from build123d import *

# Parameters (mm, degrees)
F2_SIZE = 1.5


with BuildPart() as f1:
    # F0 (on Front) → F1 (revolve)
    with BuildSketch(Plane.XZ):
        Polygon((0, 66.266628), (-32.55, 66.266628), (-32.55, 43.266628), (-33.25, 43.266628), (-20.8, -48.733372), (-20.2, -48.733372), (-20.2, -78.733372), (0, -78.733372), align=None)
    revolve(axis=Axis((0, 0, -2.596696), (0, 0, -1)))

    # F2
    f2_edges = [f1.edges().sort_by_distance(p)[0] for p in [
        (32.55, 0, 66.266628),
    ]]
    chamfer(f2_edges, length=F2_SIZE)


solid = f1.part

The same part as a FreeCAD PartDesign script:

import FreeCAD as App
import Part
import Sketcher

V = App.Vector


def edges_at(feature, points):
    """Names of the edges that pass closest to the given points."""
    edges = feature.Shape.Edges
    near = lambda p: min(range(len(edges)), key=lambda i: edges[i].distToShape(Part.Vertex(*p))[0])
    return sorted({f"Edge{near(p) + 1}" for p in points})

doc = App.newDocument("Part")
body = doc.addObject("PartDesign::Body", "Body")

# Sketch on XZ plane
sketch1 = body.newObject("Sketcher::SketchObject", "Sketch")
sketch1.AttachmentSupport = (doc.getObject("XZ_Plane"), [""])
sketch1.MapMode = "FlatFace"
sketch1.addGeometry([
    Part.LineSegment(V(0, 66.266628, 0), V(-32.55, 66.266628, 0)),  # 0
    Part.LineSegment(V(-32.55, 66.266628, 0), V(-32.55, 43.266628, 0)),  # 1
    Part.LineSegment(V(-32.55, 43.266628, 0), V(-33.25, 43.266628, 0)),  # 2
    Part.LineSegment(V(-33.25, 43.266628, 0), V(-20.8, -48.733372, 0)),  # 3
    Part.LineSegment(V(-20.8, -48.733372, 0), V(-20.2, -48.733372, 0)),  # 4
    Part.LineSegment(V(-20.2, -48.733372, 0), V(-20.2, -78.733372, 0)),  # 5
    Part.LineSegment(V(-20.2, -78.733372, 0), V(0, -78.733372, 0)),  # 6
    Part.LineSegment(V(0, -78.733372, 0), V(0, 66.266628, 0)),  # 7
], False)
sketch1.addConstraint([
    Sketcher.Constraint("Coincident", 0, 2, 1, 1),
    Sketcher.Constraint("Coincident", 1, 2, 2, 1),
    Sketcher.Constraint("Coincident", 2, 2, 3, 1),
    Sketcher.Constraint("Coincident", 3, 2, 4, 1),
    Sketcher.Constraint("Coincident", 4, 2, 5, 1),
    Sketcher.Constraint("Coincident", 5, 2, 6, 1),
    Sketcher.Constraint("Coincident", 6, 2, 7, 1),
    Sketcher.Constraint("Coincident", 7, 2, 0, 1),
    Sketcher.Constraint("Horizontal", 0),
    Sketcher.Constraint("Vertical", 1),
    Sketcher.Constraint("Horizontal", 2),
    Sketcher.Constraint("Horizontal", 4),
    Sketcher.Constraint("Vertical", 5),
    Sketcher.Constraint("Horizontal", 6),
    Sketcher.Constraint("Vertical", 7),
    Sketcher.Constraint("PointOnObject", 6, 2, -2),
    Sketcher.Constraint("DistanceY", 1, 2, 1, 1, 23.0),
    Sketcher.Constraint("DistanceY", 5, 2, 5, 1, 30.0),
    Sketcher.Constraint("DistanceY", 7, 1, 7, 2, 145.0),
    Sketcher.Constraint("DistanceX", 2, 2, 2, 1, 0.7),
    Sketcher.Constraint("DistanceX", 4, 1, 4, 2, 0.6),
    Sketcher.Constraint("DistanceX", 6, 1, 6, 2, 20.2),
    Sketcher.Constraint("DistanceX", 0, 2, 0, 1, 32.55),
    Sketcher.Constraint("DistanceY", -1, 1, 0, 2, 66.266628),
])
revolution = body.newObject("PartDesign::Revolution", "Revolution")
revolution.Profile = sketch1
revolution.ReferenceAxis = (sketch1, ["V_Axis"])
revolution.Angle = 360
doc.recompute()

chamfer = body.newObject("PartDesign::Chamfer", "Chamfer")
chamfer.Base = (revolution, edges_at(revolution, [(32.55, 0, 66.267)]))
chamfer.Size = 1.5

doc.recompute()
